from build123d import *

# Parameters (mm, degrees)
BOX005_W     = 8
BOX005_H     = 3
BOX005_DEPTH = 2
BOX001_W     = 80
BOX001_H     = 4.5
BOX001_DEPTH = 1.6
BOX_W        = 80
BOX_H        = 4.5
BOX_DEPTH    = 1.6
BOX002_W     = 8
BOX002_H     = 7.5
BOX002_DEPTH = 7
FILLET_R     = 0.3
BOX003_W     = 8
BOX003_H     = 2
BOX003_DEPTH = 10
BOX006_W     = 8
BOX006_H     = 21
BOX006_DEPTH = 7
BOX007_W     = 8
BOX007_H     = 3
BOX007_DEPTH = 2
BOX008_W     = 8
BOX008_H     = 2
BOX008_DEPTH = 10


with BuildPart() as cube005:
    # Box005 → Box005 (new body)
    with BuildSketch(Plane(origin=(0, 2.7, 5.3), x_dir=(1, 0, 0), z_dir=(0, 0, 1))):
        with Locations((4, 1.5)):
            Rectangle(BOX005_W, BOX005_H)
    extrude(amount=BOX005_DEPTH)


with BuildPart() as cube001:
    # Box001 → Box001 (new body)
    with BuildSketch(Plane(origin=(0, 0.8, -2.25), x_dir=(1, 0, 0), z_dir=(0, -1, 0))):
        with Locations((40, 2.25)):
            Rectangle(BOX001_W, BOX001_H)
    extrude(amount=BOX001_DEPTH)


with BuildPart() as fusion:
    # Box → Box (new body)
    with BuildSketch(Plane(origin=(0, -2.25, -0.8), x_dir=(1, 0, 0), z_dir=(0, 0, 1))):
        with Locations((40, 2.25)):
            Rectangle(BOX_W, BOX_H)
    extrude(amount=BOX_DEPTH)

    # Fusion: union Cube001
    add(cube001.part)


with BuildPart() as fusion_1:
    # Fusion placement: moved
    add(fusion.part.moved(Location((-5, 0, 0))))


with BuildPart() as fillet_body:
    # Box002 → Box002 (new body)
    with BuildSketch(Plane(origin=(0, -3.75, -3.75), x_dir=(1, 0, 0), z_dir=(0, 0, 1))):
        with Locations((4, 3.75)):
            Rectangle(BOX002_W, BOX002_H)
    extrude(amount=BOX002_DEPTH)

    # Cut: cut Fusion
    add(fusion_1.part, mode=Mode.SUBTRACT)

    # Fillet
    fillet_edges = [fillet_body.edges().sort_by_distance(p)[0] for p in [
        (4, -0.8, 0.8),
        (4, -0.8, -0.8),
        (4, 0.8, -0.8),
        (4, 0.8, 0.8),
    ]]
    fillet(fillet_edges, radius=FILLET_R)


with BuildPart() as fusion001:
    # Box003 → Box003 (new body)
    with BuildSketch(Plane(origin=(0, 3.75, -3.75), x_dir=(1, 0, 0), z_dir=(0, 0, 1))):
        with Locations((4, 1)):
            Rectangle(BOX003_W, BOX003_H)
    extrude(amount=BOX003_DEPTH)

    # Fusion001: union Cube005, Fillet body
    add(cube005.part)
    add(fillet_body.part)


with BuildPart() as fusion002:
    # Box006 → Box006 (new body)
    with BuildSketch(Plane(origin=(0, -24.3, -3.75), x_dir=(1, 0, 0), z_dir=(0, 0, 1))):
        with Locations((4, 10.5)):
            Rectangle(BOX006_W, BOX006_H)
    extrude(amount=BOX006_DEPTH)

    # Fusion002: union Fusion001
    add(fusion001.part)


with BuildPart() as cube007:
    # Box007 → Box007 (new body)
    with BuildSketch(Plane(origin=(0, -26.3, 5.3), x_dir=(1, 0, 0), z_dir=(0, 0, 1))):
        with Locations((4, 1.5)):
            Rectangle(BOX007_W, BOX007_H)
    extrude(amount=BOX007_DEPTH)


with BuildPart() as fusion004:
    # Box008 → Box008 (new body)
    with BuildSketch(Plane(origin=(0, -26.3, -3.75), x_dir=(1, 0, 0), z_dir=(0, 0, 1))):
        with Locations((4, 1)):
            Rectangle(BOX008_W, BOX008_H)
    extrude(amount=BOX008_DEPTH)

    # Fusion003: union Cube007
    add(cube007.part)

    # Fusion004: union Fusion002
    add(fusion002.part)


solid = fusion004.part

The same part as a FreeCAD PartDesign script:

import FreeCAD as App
import Part
import Sketcher

V = App.Vector
Q = App.Units.Quantity


def edges_at(feature, points):
    """Names of the edges that pass closest to the given points."""
    edges = feature.Shape.Edges
    near = lambda p: min(range(len(edges)), key=lambda i: edges[i].distToShape(Part.Vertex(*p))[0])
    return sorted({f"Edge{near(p) + 1}" for p in points})

doc = App.newDocument("Part")
params = doc.addObject("Spreadsheet::Sheet", "Params")
for row, (alias, value) in enumerate([
    ("sketch1_width", "8 mm"),
    ("sketch1_height", "3 mm"),
    ("pad1_length", "2 mm"),
    ("sketch2_width", "80 mm"),
    ("sketch2_height", "4.5 mm"),
    ("pad2_length", "1.6 mm"),
    ("sketch3_width", "80 mm"),
    ("sketch3_height", "4.5 mm"),
    ("pad3_length", "1.6 mm"),
    ("sketch4_width", "8 mm"),
    ("sketch4_height", "7.5 mm"),
    ("pad4_length", "7 mm"),
    ("fillet_radius", "0.3 mm"),
    ("sketch5_width", "8 mm"),
    ("sketch5_height", "2 mm"),
    ("pad5_length", "10 mm"),
    ("sketch6_width", "8 mm"),
    ("sketch6_height", "21 mm"),
    ("pad6_length", "7 mm"),
    ("sketch7_width", "8 mm"),
    ("sketch7_height", "3 mm"),
    ("pad7_length", "2 mm"),
    ("sketch8_width", "8 mm"),
    ("sketch8_height", "2 mm"),
    ("pad8_length", "10 mm"),
], start=1):
    params.set(f"A{row}", alias)
    params.set(f"B{row}", "=" + value)
    params.setAlias(f"B{row}", alias)

body = doc.addObject("PartDesign::Body", "Body")

# Sketch on XY plane
sketch1 = doc.addObject("Sketcher::SketchObject", "Sketch")
body.addObject(sketch1)
sketch1.AttachmentSupport = (doc.XY_Plane, [""])
sketch1.MapMode = "FlatFace"
sketch1.AttachmentOffset = App.Placement(V(0, 0, 5.3), App.Rotation())
sketch1.addGeometry([
    Part.LineSegment(V(0, 5.7, 0), V(0, 2.7, 0)),
    Part.LineSegment(V(0, 2.7, 0), V(8, 2.7, 0)),
    Part.LineSegment(V(8, 2.7, 0), V(8, 5.7, 0)),
    Part.LineSegment(V(8, 5.7, 0), V(0, 5.7, 0)),
], False)
sketch1.addConstraint([
    Sketcher.Constraint("Coincident", 0, 2, 1, 1),
    Sketcher.Constraint("Coincident", 1, 2, 2, 1),
    Sketcher.Constraint("Coincident", 2, 2, 3, 1),
    Sketcher.Constraint("Coincident", 3, 2, 0, 1),
    Sketcher.Constraint("Vertical", 0),
    Sketcher.Constraint("Horizontal", 1),
    Sketcher.Constraint("Vertical", 2),
    Sketcher.Constraint("Horizontal", 3),
    Sketcher.Constraint("PointOnObject", 0, 2, -2),
    Sketcher.Constraint("DistanceX", 1, 1, 1, 2, Q("8 mm")),
    Sketcher.Constraint("DistanceY", 0, 2, 0, 1, Q("3 mm")),
    Sketcher.Constraint("DistanceY", -1, 1, 0, 2, Q("2.7 mm")),
])
sketch1.setExpression("Constraints[9]", "Params.sketch1_width")
sketch1.setExpression("Constraints[10]", "Params.sketch1_height")
pad1 = doc.addObject("PartDesign::Pad", "Pad")
body.addObject(pad1)
pad1.Profile = sketch1
pad1.setExpression("Length", "Params.pad1_length")
body2 = doc.addObject("PartDesign::Body", "Body001")

# Sketch on XZ plane
sketch2 = doc.addObject("Sketcher::SketchObject", "Sketch001")
body2.addObject(sketch2)
sketch2.AttachmentSupport = (doc.getObject("XZ_Plane001"), [""])
sketch2.MapMode = "FlatFace"
sketch2.AttachmentOffset = App.Placement(V(0, 0, -0.8), App.Rotation())
sketch2.addGeometry([
    Part.LineSegment(V(0, 2.2, 0), V(0, -2.2, 0)),
    Part.LineSegment(V(0, -2.2, 0), V(80, -2.2, 0)),
    Part.LineSegment(V(80, -2.2, 0), V(80, 2.2, 0)),
    Part.LineSegment(V(80, 2.2, 0), V(0, 2.2, 0)),
], False)
sketch2.addConstraint([
    Sketcher.Constraint("Coincident", 0, 2, 1, 1),
    Sketcher.Constraint("Coincident", 1, 2, 2, 1),
    Sketcher.Constraint("Coincident", 2, 2, 3, 1),
    Sketcher.Constraint("Coincident", 3, 2, 0, 1),
    Sketcher.Constraint("Vertical", 0),
    Sketcher.Constraint("Horizontal", 1),
    Sketcher.Constraint("Vertical", 2),
    Sketcher.Constraint("Horizontal", 3),
    Sketcher.Constraint("Symmetric", 0, 2, 3, 2, -1, 1),
    Sketcher.Constraint("DistanceX", 1, 1, 1, 2, Q("80 mm")),
    Sketcher.Constraint("DistanceY", 0, 2, 0, 1, Q("4.5 mm")),
])
sketch2.setExpression("Constraints[9]", "Params.sketch2_width")
sketch2.setExpression("Constraints[10]", "Params.sketch2_height")
pad2 = doc.addObject("PartDesign::Pad", "Pad001")
body2.addObject(pad2)
pad2.Profile = sketch2
pad2.setExpression("Length", "Params.pad2_length")
body3 = doc.addObject("PartDesign::Body", "Body002")

# Sketch on XY plane
sketch3 = doc.addObject("Sketcher::SketchObject", "Sketch002")
body3.addObject(sketch3)
sketch3.AttachmentSupport = (doc.getObject("XY_Plane002"), [""])
sketch3.MapMode = "FlatFace"
sketch3.AttachmentOffset = App.Placement(V(0, 0, -0.8), App.Rotation())
sketch3.addGeometry([
    Part.LineSegment(V(0, 2.2, 0), V(0, -2.2, 0)),
    Part.LineSegment(V(0, -2.2, 0), V(80, -2.2, 0)),
    Part.LineSegment(V(80, -2.2, 0), V(80, 2.2, 0)),
    Part.LineSegment(V(80, 2.2, 0), V(0, 2.2, 0)),
], False)
sketch3.addConstraint([
    Sketcher.Constraint("Coincident", 0, 2, 1, 1),
    Sketcher.Constraint("Coincident", 1, 2, 2, 1),
    Sketcher.Constraint("Coincident", 2, 2, 3, 1),
    Sketcher.Constraint("Coincident", 3, 2, 0, 1),
    Sketcher.Constraint("Vertical", 0),
    Sketcher.Constraint("Horizontal", 1),
    Sketcher.Constraint("Vertical", 2),
    Sketcher.Constraint("Horizontal", 3),
    Sketcher.Constraint("Symmetric", 0, 2, 3, 2, -1, 1),
    Sketcher.Constraint("DistanceX", 1, 1, 1, 2, Q("80 mm")),
    Sketcher.Constraint("DistanceY", 0, 2, 0, 1, Q("4.5 mm")),
])
sketch3.setExpression("Constraints[9]", "Params.sketch3_width")
sketch3.setExpression("Constraints[10]", "Params.sketch3_height")
pad3 = doc.addObject("PartDesign::Pad", "Pad002")
body3.addObject(pad3)
pad3.Profile = sketch3
pad3.setExpression("Length", "Params.pad3_length")
doc.recompute()

boolean = doc.addObject("PartDesign::Boolean", "Boolean")
body3.addObject(boolean)
boolean.Type = "Fuse"
boolean.addObjects([body2])
body4 = doc.addObject("PartDesign::Body", "Body003")
doc.recompute()

body3.Placement = App.Placement(V(-5, 0, 0), App.Rotation(V(0, 0, 1), 0))
boolean2 = doc.addObject("PartDesign::Boolean", "Boolean001")
body4.addObject(boolean2)
boolean2.Type = "Fuse"
boolean2.addObjects([body3])
body5 = doc.addObject("PartDesign::Body", "Body004")

# Sketch on XY plane
sketch4 = doc.addObject("Sketcher::SketchObject", "Sketch003")
body5.addObject(sketch4)
sketch4.AttachmentSupport = (doc.getObject("XY_Plane004"), [""])
sketch4.MapMode = "FlatFace"
sketch4.AttachmentOffset = App.Placement(V(0, 0, -3.75), App.Rotation())
sketch4.addGeometry([
    Part.LineSegment(V(0, 4, 0), V(0, -4, 0)),
    Part.LineSegment(V(0, -4, 0), V(8, -4, 0)),
    Part.LineSegment(V(8, -4, 0), V(8, 4, 0)),
    Part.LineSegment(V(8, 4, 0), V(0, 4, 0)),
], False)
sketch4.addConstraint([
    Sketcher.Constraint("Coincident", 0, 2, 1, 1),
    Sketcher.Constraint("Coincident", 1, 2, 2, 1),
    Sketcher.Constraint("Coincident", 2, 2, 3, 1),
    Sketcher.Constraint("Coincident", 3, 2, 0, 1),
    Sketcher.Constraint("Vertical", 0),
    Sketcher.Constraint("Horizontal", 1),
    Sketcher.Constraint("Vertical", 2),
    Sketcher.Constraint("Horizontal", 3),
    Sketcher.Constraint("Symmetric", 0, 2, 3, 2, -1, 1),
    Sketcher.Constraint("DistanceX", 1, 1, 1, 2, Q("8 mm")),
    Sketcher.Constraint("DistanceY", 0, 2, 0, 1, Q("7.5 mm")),
])
sketch4.setExpression("Constraints[9]", "Params.sketch4_width")
sketch4.setExpression("Constraints[10]", "Params.sketch4_height")
pad4 = doc.addObject("PartDesign::Pad", "Pad003")
body5.addObject(pad4)
pad4.Profile = sketch4
pad4.setExpression("Length", "Params.pad4_length")
doc.recompute()

boolean3 = doc.addObject("PartDesign::Boolean", "Boolean002")
body5.addObject(boolean3)
boolean3.Type = "Cut"
boolean3.addObjects([body4])
doc.recompute()

fillet = doc.addObject("PartDesign::Fillet", "Fillet")
body5.addObject(fillet)
fillet.Base = (boolean3, edges_at(boolean3, [
    (4, -0.8, 0.8),
    (4, -0.8, -0.8),
    (4, 0.8, -0.8),
    (4, 0.8, 0.8),
]))
fillet.setExpression("Radius", "Params.fillet_radius")
body6 = doc.addObject("PartDesign::Body", "Body005")

# Sketch on XY plane
sketch5 = doc.addObject("Sketcher::SketchObject", "Sketch004")
body6.addObject(sketch5)
sketch5.AttachmentSupport = (doc.getObject("XY_Plane005"), [""])
sketch5.MapMode = "FlatFace"
sketch5.AttachmentOffset = App.Placement(V(0, 0, -3.75), App.Rotation())
sketch5.addGeometry([
    Part.LineSegment(V(0, 5.8, 0), V(0, 3.8, 0)),
    Part.LineSegment(V(0, 3.8, 0), V(8, 3.8, 0)),
    Part.LineSegment(V(8, 3.8, 0), V(8, 5.8, 0)),
    Part.LineSegment(V(8, 5.8, 0), V(0, 5.8, 0)),
], False)
sketch5.addConstraint([
    Sketcher.Constraint("Coincident", 0, 2, 1, 1),
    Sketcher.Constraint("Coincident", 1, 2, 2, 1),
    Sketcher.Constraint("Coincident", 2, 2, 3, 1),
    Sketcher.Constraint("Coincident", 3, 2, 0, 1),
    Sketcher.Constraint("Vertical", 0),
    Sketcher.Constraint("Horizontal", 1),
    Sketcher.Constraint("Vertical", 2),
    Sketcher.Constraint("Horizontal", 3),
    Sketcher.Constraint("PointOnObject", 0, 2, -2),
    Sketcher.Constraint("DistanceX", 1, 1, 1, 2, Q("8 mm")),
    Sketcher.Constraint("DistanceY", 0, 2, 0, 1, Q("2 mm")),
    Sketcher.Constraint("DistanceY", -1, 1, 0, 2, Q("3.75 mm")),
])
sketch5.setExpression("Constraints[9]", "Params.sketch5_width")
sketch5.setExpression("Constraints[10]", "Params.sketch5_height")
pad5 = doc.addObject("PartDesign::Pad", "Pad004")
body6.addObject(pad5)
pad5.Profile = sketch5
pad5.setExpression("Length", "Params.pad5_length")
doc.recompute()

boolean4 = doc.addObject("PartDesign::Boolean", "Boolean003")
body6.addObject(boolean4)
boolean4.Type = "Fuse"
boolean4.addObjects([body])
doc.recompute()

boolean5 = doc.addObject("PartDesign::Boolean", "Boolean004")
body6.addObject(boolean5)
boolean5.Type = "Fuse"
boolean5.addObjects([body5])
body7 = doc.addObject("PartDesign::Body", "Body006")

# Sketch on XY plane
sketch6 = doc.addObject("Sketcher::SketchObject", "Sketch005")
body7.addObject(sketch6)
sketch6.AttachmentSupport = (doc.getObject("XY_Plane006"), [""])
sketch6.MapMode = "FlatFace"
sketch6.AttachmentOffset = App.Placement(V(0, 0, -3.75), App.Rotation())
sketch6.addGeometry([
    Part.LineSegment(V(0, -3, 0), V(0, -24, 0)),
    Part.LineSegment(V(0, -24, 0), V(8, -24, 0)),
    Part.LineSegment(V(8, -24, 0), V(8, -3, 0)),
    Part.LineSegment(V(8, -3, 0), V(0, -3, 0)),
], False)
sketch6.addConstraint([
    Sketcher.Constraint("Coincident", 0, 2, 1, 1),
    Sketcher.Constraint("Coincident", 1, 2, 2, 1),
    Sketcher.Constraint("Coincident", 2, 2, 3, 1),
    Sketcher.Constraint("Coincident", 3, 2, 0, 1),
    Sketcher.Constraint("Vertical", 0),
    Sketcher.Constraint("Horizontal", 1),
    Sketcher.Constraint("Vertical", 2),
    Sketcher.Constraint("Horizontal", 3),
    Sketcher.Constraint("PointOnObject", 0, 2, -2),
    Sketcher.Constraint("DistanceX", 1, 1, 1, 2, Q("8 mm")),
    Sketcher.Constraint("DistanceY", 0, 2, 0, 1, Q("21 mm")),
    Sketcher.Constraint("DistanceY", 0, 2, -1, 1, Q("24.3 mm")),
])
sketch6.setExpression("Constraints[9]", "Params.sketch6_width")
sketch6.setExpression("Constraints[10]", "Params.sketch6_height")
pad6 = doc.addObject("PartDesign::Pad", "Pad005")
body7.addObject(pad6)
pad6.Profile = sketch6
pad6.setExpression("Length", "Params.pad6_length")
doc.recompute()

boolean6 = doc.addObject("PartDesign::Boolean", "Boolean005")
body7.addObject(boolean6)
boolean6.Type = "Fuse"
boolean6.addObjects([body6])
body8 = doc.addObject("PartDesign::Body", "Body007")

# Sketch on XY plane
sketch7 = doc.addObject("Sketcher::SketchObject", "Sketch006")
body8.addObject(sketch7)
sketch7.AttachmentSupport = (doc.getObject("XY_Plane007"), [""])
sketch7.MapMode = "FlatFace"
sketch7.AttachmentOffset = App.Placement(V(0, 0, 5.3), App.Rotation())
sketch7.addGeometry([
    Part.LineSegment(V(0, -23.3, 0), V(0, -26.3, 0)),
    Part.LineSegment(V(0, -26.3, 0), V(8, -26.3, 0)),
    Part.LineSegment(V(8, -26.3, 0), V(8, -23.3, 0)),
    Part.LineSegment(V(8, -23.3, 0), V(0, -23.3, 0)),
], False)
sketch7.addConstraint([
    Sketcher.Constraint("Coincident", 0, 2, 1, 1),
    Sketcher.Constraint("Coincident", 1, 2, 2, 1),
    Sketcher.Constraint("Coincident", 2, 2, 3, 1),
    Sketcher.Constraint("Coincident", 3, 2, 0, 1),
    Sketcher.Constraint("Vertical", 0),
    Sketcher.Constraint("Horizontal", 1),
    Sketcher.Constraint("Vertical", 2),
    Sketcher.Constraint("Horizontal", 3),
    Sketcher.Constraint("PointOnObject", 0, 2, -2),
    Sketcher.Constraint("DistanceX", 1, 1, 1, 2, Q("8 mm")),
    Sketcher.Constraint("DistanceY", 0, 2, 0, 1, Q("3 mm")),
    Sketcher.Constraint("DistanceY", 0, 2, -1, 1, Q("26.3 mm")),
])
sketch7.setExpression("Constraints[9]", "Params.sketch7_width")
sketch7.setExpression("Constraints[10]", "Params.sketch7_height")
pad7 = doc.addObject("PartDesign::Pad", "Pad006")
body8.addObject(pad7)
pad7.Profile = sketch7
pad7.setExpression("Length", "Params.pad7_length")
body9 = doc.addObject("PartDesign::Body", "Body008")

# Sketch on XY plane
sketch8 = doc.addObject("Sketcher::SketchObject", "Sketch007")
body9.addObject(sketch8)
sketch8.AttachmentSupport = (doc.getObject("XY_Plane008"), [""])
sketch8.MapMode = "FlatFace"
sketch8.AttachmentOffset = App.Placement(V(0, 0, -3.75), App.Rotation())
sketch8.addGeometry([
    Part.LineSegment(V(0, -24.3, 0), V(0, -26.3, 0)),
    Part.LineSegment(V(0, -26.3, 0), V(8, -26.3, 0)),
    Part.LineSegment(V(8, -26.3, 0), V(8, -24.3, 0)),
    Part.LineSegment(V(8, -24.3, 0), V(0, -24.3, 0)),
], False)
sketch8.addConstraint([
    Sketcher.Constraint("Coincident", 0, 2, 1, 1),
    Sketcher.Constraint("Coincident", 1, 2, 2, 1),
    Sketcher.Constraint("Coincident", 2, 2, 3, 1),
    Sketcher.Constraint("Coincident", 3, 2, 0, 1),
    Sketcher.Constraint("Vertical", 0),
    Sketcher.Constraint("Horizontal", 1),
    Sketcher.Constraint("Vertical", 2),
    Sketcher.Constraint("Horizontal", 3),
    Sketcher.Constraint("PointOnObject", 0, 2, -2),
    Sketcher.Constraint("DistanceX", 1, 1, 1, 2, Q("8 mm")),
    Sketcher.Constraint("DistanceY", 0, 2, 0, 1, Q("2 mm")),
    Sketcher.Constraint("DistanceY", 0, 2, -1, 1, Q("26.3 mm")),
])
sketch8.setExpression("Constraints[9]", "Params.sketch8_width")
sketch8.setExpression("Constraints[10]", "Params.sketch8_height")
pad8 = doc.addObject("PartDesign::Pad", "Pad007")
body9.addObject(pad8)
pad8.Profile = sketch8
pad8.setExpression("Length", "Params.pad8_length")
doc.recompute()

boolean7 = doc.addObject("PartDesign::Boolean", "Boolean006")
body9.addObject(boolean7)
boolean7.Type = "Fuse"
boolean7.addObjects([body8])
doc.recompute()

boolean8 = doc.addObject("PartDesign::Boolean", "Boolean007")
body9.addObject(boolean8)
boolean8.Type = "Fuse"
boolean8.addObjects([body7])

doc.recompute()
